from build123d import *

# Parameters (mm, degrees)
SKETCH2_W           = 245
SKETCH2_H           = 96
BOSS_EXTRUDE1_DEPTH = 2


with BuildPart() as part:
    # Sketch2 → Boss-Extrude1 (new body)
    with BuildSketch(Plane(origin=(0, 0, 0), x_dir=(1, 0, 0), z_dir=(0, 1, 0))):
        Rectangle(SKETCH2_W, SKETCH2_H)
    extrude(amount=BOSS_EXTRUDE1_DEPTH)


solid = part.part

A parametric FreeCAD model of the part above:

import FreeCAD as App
import Part
import Sketcher
Q = App.Units.Quantity

doc = App.newDocument("Part")
params = doc.addObject("Spreadsheet::Sheet", "Params")
for row, (alias, value) in enumerate([
    ("sketch1_width", "245 mm"),
    ("sketch1_height", "96 mm"),
    ("pad1_length", "2 mm"),
], start=1):
    params.set(f"A{row}", alias)
    params.set(f"B{row}", "=" + value)
    params.setAlias(f"B{row}", alias)

body = doc.addObject("PartDesign::Body", "Body")

# Sketch on XZ plane
sketch1 = doc.addObject("Sketcher::SketchObject", "Sketch")
body.addObject(sketch1)
sketch1.AttachmentSupport = (doc.XZ_Plane, [""])
sketch1.MapMode = "FlatFace"
sketch1.addGeometry([
    Part.LineSegment(App.Vector(-122, -48, 0), App.Vector(-122, 48, 0)),
    Part.LineSegment(App.Vector(-122, 48, 0), App.Vector(122, 48, 0)),
    Part.LineSegment(App.Vector(122, 48, 0), App.Vector(122, -48, 0)),
    Part.LineSegment(App.Vector(122, -48, 0), App.Vector(-122, -48, 0)),
], False)
sketch1.addConstraint([
    Sketcher.Constraint("Coincident", 0, 2, 1, 1),
    Sketcher.Constraint("Coincident", 1, 2, 2, 1),
    Sketcher.Constraint("Coincident", 2, 2, 3, 1),
    Sketcher.Constraint("Coincident", 3, 2, 0, 1),
    Sketcher.Constraint("Vertical", 0),
    Sketcher.Constraint("Horizontal", 1),
    Sketcher.Constraint("Vertical", 2),
    Sketcher.Constraint("Horizontal", 3),
    Sketcher.Constraint("Symmetric", 0, 2, 2, 2, -1, 1),
    Sketcher.Constraint("DistanceX", 1, 1, 1, 2, Q("245 mm")),
    Sketcher.Constraint("DistanceY", 0, 1, 0, 2, Q("96 mm")),
])
sketch1.setExpression("Constraints[9]", "Params.sketch1_width")
sketch1.setExpression("Constraints[10]", "Params.sketch1_height")
pad1 = doc.addObject("PartDesign::Pad", "Pad")
body.addObject(pad1)
pad1.Profile = sketch1
pad1.setExpression("Length", "Params.pad1_length")
pad1.Reversed = True

doc.recompute()
